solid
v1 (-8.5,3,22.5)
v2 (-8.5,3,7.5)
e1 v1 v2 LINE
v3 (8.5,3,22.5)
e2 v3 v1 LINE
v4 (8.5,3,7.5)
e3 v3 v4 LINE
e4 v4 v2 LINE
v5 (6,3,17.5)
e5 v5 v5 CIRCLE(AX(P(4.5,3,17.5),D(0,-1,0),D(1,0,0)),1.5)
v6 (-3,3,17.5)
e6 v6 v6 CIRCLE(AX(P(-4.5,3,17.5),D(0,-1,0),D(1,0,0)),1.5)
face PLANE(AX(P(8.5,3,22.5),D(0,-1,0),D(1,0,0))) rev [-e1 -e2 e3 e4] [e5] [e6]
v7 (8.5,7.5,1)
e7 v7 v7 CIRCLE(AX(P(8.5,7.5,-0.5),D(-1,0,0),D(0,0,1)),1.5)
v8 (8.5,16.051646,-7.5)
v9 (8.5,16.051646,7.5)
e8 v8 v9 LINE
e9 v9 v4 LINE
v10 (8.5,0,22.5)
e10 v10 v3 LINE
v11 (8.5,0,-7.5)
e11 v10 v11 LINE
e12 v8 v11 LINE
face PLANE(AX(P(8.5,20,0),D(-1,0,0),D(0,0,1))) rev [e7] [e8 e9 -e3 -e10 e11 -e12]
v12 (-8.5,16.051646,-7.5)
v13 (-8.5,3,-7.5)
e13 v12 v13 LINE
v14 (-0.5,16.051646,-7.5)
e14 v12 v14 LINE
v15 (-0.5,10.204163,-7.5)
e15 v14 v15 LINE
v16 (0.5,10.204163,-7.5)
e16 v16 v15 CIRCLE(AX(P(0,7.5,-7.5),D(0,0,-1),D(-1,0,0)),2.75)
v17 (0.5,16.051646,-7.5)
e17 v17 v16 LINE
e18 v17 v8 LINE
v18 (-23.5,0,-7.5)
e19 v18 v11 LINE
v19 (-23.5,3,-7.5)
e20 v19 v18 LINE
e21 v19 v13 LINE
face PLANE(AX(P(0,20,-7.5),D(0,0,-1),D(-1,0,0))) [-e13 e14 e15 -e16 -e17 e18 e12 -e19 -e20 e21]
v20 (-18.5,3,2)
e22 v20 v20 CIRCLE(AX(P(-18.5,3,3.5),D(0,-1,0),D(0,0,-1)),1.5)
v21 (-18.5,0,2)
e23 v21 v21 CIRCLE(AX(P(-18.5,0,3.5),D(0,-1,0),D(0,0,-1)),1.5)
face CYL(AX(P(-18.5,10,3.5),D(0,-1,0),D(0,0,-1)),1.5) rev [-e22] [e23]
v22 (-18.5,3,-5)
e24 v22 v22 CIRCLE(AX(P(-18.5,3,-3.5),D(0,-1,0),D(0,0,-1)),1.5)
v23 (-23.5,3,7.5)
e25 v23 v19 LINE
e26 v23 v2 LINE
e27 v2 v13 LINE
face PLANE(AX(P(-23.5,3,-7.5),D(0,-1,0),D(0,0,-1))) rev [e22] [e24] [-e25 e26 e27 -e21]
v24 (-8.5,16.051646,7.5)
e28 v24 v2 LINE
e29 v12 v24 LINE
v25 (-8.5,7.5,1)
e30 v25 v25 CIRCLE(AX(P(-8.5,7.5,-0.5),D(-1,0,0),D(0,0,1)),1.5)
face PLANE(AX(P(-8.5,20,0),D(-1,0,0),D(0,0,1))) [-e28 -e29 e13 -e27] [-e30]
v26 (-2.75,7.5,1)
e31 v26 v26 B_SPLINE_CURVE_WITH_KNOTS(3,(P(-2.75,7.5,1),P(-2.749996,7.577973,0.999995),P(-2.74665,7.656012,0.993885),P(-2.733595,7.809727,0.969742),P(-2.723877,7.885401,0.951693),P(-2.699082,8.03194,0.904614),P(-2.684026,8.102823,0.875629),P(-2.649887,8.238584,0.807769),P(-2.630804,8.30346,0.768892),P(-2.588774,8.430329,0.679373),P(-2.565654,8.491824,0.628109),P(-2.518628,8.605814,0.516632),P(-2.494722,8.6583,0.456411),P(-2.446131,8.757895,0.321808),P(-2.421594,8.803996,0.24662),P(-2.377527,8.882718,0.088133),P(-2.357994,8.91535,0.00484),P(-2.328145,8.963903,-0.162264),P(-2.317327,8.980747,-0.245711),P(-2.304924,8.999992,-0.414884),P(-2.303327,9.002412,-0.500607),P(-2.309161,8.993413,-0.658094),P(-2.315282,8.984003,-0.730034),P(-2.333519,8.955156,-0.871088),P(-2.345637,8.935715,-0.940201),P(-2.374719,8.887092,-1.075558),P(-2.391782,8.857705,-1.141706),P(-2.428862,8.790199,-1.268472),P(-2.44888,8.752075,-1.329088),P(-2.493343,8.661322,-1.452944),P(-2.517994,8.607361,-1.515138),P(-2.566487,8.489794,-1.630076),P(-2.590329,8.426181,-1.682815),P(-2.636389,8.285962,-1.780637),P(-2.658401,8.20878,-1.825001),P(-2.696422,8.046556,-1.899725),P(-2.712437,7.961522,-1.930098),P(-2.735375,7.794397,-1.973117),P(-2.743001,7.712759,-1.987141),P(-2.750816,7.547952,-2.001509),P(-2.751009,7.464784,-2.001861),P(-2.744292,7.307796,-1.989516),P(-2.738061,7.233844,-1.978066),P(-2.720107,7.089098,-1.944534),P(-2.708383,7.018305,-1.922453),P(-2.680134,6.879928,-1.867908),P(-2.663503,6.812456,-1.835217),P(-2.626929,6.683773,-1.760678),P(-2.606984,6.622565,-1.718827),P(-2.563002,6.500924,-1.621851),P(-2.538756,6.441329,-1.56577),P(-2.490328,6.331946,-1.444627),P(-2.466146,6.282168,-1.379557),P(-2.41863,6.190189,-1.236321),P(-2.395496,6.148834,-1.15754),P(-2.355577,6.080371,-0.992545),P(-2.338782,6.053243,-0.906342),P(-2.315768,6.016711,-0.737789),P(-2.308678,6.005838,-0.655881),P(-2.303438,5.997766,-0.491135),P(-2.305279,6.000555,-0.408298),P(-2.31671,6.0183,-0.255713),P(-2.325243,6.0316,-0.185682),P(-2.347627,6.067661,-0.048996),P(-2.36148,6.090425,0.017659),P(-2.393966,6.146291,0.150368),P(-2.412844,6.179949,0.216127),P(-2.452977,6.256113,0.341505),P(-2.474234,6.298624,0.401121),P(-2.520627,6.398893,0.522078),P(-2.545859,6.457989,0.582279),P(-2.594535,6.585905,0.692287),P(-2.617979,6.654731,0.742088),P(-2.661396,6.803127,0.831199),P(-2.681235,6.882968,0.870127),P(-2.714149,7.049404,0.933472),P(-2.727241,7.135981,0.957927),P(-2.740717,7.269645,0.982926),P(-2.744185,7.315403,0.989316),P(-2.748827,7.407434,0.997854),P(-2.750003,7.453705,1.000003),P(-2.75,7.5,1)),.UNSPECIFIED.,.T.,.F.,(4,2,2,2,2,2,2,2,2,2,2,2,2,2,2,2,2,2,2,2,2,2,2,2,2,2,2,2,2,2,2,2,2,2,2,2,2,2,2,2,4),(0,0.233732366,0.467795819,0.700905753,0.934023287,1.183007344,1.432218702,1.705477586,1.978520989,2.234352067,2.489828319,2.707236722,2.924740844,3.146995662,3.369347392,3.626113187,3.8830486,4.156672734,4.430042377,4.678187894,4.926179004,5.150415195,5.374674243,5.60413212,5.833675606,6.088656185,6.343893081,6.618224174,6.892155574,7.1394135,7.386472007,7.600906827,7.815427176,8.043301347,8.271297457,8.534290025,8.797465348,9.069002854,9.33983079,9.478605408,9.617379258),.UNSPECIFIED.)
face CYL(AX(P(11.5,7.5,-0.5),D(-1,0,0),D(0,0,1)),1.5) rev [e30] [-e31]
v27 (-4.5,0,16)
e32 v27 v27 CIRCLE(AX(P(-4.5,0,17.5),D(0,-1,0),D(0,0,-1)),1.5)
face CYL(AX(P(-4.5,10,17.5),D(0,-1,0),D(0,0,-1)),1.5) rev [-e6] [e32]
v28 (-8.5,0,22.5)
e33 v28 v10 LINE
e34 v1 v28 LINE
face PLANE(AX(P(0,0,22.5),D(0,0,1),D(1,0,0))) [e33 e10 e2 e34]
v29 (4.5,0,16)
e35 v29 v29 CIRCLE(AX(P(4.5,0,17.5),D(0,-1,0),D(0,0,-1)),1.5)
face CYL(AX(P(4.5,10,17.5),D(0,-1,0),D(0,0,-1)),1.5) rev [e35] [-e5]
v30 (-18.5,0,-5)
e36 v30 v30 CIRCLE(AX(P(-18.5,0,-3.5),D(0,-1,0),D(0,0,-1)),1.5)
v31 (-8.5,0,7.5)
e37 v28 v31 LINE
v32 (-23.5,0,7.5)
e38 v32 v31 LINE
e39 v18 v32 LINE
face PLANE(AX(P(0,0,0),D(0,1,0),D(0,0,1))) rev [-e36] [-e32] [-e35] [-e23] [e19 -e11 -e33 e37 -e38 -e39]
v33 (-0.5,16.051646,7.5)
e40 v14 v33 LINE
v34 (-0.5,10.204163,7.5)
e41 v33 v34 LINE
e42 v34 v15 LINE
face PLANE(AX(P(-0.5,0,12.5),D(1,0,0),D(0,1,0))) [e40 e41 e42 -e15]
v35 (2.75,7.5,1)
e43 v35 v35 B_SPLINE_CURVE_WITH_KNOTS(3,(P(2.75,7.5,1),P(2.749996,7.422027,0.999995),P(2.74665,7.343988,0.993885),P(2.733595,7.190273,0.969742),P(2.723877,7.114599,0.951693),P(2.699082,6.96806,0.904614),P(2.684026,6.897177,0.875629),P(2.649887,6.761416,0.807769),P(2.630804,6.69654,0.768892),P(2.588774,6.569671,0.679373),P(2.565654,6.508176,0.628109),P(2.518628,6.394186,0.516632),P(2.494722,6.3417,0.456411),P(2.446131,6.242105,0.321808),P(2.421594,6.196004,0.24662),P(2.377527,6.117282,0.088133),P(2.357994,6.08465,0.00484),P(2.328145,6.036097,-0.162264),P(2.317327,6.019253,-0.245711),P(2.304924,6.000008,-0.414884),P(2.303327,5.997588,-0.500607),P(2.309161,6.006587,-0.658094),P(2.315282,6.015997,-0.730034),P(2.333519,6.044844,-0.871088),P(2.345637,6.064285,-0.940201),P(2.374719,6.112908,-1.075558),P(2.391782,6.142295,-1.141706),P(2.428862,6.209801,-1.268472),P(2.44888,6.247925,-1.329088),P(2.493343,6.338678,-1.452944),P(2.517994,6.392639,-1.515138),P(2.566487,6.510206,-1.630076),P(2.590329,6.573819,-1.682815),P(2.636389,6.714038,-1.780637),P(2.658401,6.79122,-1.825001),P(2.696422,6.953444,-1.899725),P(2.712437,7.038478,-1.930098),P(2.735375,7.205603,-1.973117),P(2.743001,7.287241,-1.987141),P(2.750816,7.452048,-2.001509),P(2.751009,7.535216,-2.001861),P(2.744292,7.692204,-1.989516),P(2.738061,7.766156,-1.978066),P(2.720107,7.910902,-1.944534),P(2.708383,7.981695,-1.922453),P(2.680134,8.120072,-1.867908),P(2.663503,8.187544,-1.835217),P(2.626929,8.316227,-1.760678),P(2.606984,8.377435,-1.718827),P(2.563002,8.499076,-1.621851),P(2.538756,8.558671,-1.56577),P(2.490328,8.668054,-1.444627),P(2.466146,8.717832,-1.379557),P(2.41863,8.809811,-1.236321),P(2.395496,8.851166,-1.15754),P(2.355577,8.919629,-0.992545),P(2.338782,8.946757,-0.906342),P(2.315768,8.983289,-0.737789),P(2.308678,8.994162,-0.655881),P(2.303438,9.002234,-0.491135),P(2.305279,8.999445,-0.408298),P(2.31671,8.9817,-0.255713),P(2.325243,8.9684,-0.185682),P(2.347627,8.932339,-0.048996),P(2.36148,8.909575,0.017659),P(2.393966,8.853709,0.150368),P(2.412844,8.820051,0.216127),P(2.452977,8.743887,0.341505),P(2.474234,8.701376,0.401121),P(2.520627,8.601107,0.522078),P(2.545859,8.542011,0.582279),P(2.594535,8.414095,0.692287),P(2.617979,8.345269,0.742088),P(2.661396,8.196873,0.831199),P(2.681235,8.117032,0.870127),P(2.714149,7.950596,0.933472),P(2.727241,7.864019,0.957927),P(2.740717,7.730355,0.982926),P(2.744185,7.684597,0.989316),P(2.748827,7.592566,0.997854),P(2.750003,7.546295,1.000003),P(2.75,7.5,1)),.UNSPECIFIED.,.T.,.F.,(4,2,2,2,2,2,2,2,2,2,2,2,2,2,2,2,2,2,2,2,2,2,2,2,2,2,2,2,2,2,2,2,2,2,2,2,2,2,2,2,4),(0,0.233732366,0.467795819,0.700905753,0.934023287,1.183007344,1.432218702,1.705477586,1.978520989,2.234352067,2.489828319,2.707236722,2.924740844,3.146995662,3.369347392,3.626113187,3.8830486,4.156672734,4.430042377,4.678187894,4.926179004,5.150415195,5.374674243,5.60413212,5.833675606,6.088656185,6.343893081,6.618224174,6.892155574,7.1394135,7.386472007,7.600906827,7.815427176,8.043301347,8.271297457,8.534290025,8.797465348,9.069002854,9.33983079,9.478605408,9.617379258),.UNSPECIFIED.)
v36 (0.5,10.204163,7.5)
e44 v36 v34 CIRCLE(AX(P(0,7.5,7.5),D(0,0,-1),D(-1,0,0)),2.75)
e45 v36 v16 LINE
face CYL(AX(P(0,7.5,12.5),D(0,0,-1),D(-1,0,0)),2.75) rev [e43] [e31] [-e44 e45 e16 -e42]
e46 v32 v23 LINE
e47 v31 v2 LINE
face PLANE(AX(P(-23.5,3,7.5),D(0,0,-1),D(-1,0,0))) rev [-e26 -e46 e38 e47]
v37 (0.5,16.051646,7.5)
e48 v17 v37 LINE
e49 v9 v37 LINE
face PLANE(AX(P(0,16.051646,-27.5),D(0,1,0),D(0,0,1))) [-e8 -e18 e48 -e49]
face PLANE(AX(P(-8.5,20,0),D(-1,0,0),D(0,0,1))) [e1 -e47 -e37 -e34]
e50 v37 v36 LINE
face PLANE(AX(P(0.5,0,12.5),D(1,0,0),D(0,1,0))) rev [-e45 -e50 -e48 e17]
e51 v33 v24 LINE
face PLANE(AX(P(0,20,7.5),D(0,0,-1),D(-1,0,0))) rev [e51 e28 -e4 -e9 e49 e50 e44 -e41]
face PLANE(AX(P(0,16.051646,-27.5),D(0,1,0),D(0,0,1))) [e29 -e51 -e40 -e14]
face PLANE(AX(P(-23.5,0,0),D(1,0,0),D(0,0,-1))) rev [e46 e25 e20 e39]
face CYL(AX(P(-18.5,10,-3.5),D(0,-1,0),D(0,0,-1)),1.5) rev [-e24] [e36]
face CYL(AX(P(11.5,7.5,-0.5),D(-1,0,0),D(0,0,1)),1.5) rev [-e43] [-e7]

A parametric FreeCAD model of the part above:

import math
import FreeCAD as App
import Part
import Sketcher
from FreeCAD import Vector
Q = App.Units.Quantity

doc = App.newDocument("Part")
params = doc.addObject("Spreadsheet::Sheet", "Params")
for row, (alias, value) in enumerate([
    ("sketch1_width", "17 mm"),
    ("sketch1_height", "15 mm"),
    ("pad1_length", "20 mm"),
    ("sketch2_width", "1 mm"),
    ("sketch2_radius", "2.75 mm"),
    ("pocket1_length", "20 mm"),
    ("sketch3_diameter", "3 mm"),
    ("pocket2_length", "20 mm"),
    ("sketch4_width", "8 mm"),
    ("pocket3_length", "35 mm"),
    ("sketch5_width", "17 mm"),
    ("sketch5_height", "3 mm"),
    ("pad2_length", "15 mm"),
    ("sketch6_width", "3 mm"),
    ("sketch6_height", "15 mm"),
    ("pad3_length", "15 mm"),
    ("sketch7_diameter", "3 mm"),
    ("pocket4_length", "10 mm"),
], start=1):
    params.set(f"A{row}", alias)
    params.set(f"B{row}", "=" + value)
    params.setAlias(f"B{row}", alias)

body = doc.addObject("PartDesign::Body", "Body")

sketch1 = doc.addObject("Sketcher::SketchObject", "Sketch")
body.addObject(sketch1)
sketch1.AttachmentSupport = (doc.XZ_Plane, [""])
sketch1.MapMode = "FlatFace"
sketch1.addGeometry([
    Part.LineSegment(Vector(-8, -8, 0), Vector(-8, 8, 0)),
    Part.LineSegment(Vector(-8, 8, 0), Vector(8, 8, 0)),
    Part.LineSegment(Vector(8, 8, 0), Vector(8, -8, 0)),
    Part.LineSegment(Vector(8, -8, 0), Vector(-8, -8, 0)),
], False)
sketch1.addConstraint([
    Sketcher.Constraint("Coincident", 0, 2, 1, 1),
    Sketcher.Constraint("Coincident", 1, 2, 2, 1),
    Sketcher.Constraint("Coincident", 2, 2, 3, 1),
    Sketcher.Constraint("Coincident", 3, 2, 0, 1),
    Sketcher.Constraint("Vertical", 0),
    Sketcher.Constraint("Horizontal", 1),
    Sketcher.Constraint("Vertical", 2),
    Sketcher.Constraint("Horizontal", 3),
    Sketcher.Constraint("Symmetric", 0, 2, 2, 2, -1, 1),
    Sketcher.Constraint("DistanceX", 1, 1, 1, 2, Q("17 mm")),
    Sketcher.Constraint("DistanceY", 0, 1, 0, 2, Q("15 mm")),
])
sketch1.setExpression("Constraints[9]", "Params.sketch1_width")
sketch1.setExpression("Constraints[10]", "Params.sketch1_height")
pad1 = doc.addObject("PartDesign::Pad", "Pad")
body.addObject(pad1)
pad1.Profile = sketch1
pad1.setExpression("Length", "Params.pad1_length")
pad1.Reversed = True

sketch2 = doc.addObject("Sketcher::SketchObject", "Sketch001")
body.addObject(sketch2)
sketch2.AttachmentSupport = (doc.XY_Plane, [""])
sketch2.MapMode = "FlatFace"
sketch2.AttachmentOffset = App.Placement(Vector(0, 0, -7.5), App.Rotation())
sketch2.addGeometry([
    Part.LineSegment(Vector(-0.5, 10.2, 0), Vector(-0.5, 20, 0)),
    Part.LineSegment(Vector(-0.5, 20, 0), Vector(0.5, 20, 0)),
    Part.LineSegment(Vector(0.5, 20, 0), Vector(0.5, 10.2, 0)),
    Part.ArcOfCircle(Part.Circle(Vector(0, 7.5, 0), Vector(0, 0, 1), 2.8), math.radians(100), math.radians(440)),
], False)
sketch2.addConstraint([
    Sketcher.Constraint("Coincident", 0, 2, 1, 1),
    Sketcher.Constraint("Coincident", 1, 2, 2, 1),
    Sketcher.Constraint("Coincident", 2, 2, 3, 2),
    Sketcher.Constraint("Coincident", 3, 1, 0, 1),
    Sketcher.Constraint("Vertical", 0),
    Sketcher.Constraint("Horizontal", 1),
    Sketcher.Constraint("Vertical", 2),
    Sketcher.Constraint("Symmetric", 2, 2, 3, 1, -2),
    Sketcher.Constraint("DistanceX", 1, 1, 1, 2, Q("1 mm")),
    Sketcher.Constraint("Radius", 3, Q("2.75 mm")),
    Sketcher.Constraint("DistanceY", -1, 1, 0, 2, Q("20 mm")),
    Sketcher.Constraint("DistanceY", -1, 1, 3, 3, Q("7.5 mm")),
])
sketch2.setExpression("Constraints[8]", "Params.sketch2_width")
sketch2.setExpression("Constraints[9]", "Params.sketch2_radius")
pocket1 = doc.addObject("PartDesign::Pocket", "Pocket")
body.addObject(pocket1)
pocket1.Profile = sketch2
pocket1.setExpression("Length", "Params.pocket1_length")
pocket1.Reversed = True

sketch3 = doc.addObject("Sketcher::SketchObject", "Sketch002")
body.addObject(sketch3)
sketch3.AttachmentSupport = (doc.YZ_Plane, [""])
sketch3.MapMode = "FlatFace"
sketch3.AttachmentOffset = App.Placement(Vector(0, 0, -8.5), App.Rotation())
sketch3.addGeometry(Part.Circle(Vector(7.5, -0.5, 0), Vector(0, 0, 1), 1.5), False)
sketch3.addConstraint([
    Sketcher.Constraint("Diameter", 0, Q("3 mm")),
    Sketcher.Constraint("DistanceX", -1, 1, 0, 3, Q("7.5 mm")),
    Sketcher.Constraint("DistanceY", 0, 3, -1, 1, Q("0.5 mm")),
])
sketch3.setExpression("Constraints[0]", "Params.sketch3_diameter")
pocket2 = doc.addObject("PartDesign::Pocket", "Pocket001")
body.addObject(pocket2)
pocket2.Profile = sketch3
pocket2.setExpression("Length", "Params.pocket2_length")
pocket2.Reversed = True

sketch4 = doc.addObject("Sketcher::SketchObject", "Sketch003")
body.addObject(sketch4)
sketch4.AttachmentSupport = (doc.XY_Plane, [""])
sketch4.MapMode = "FlatFace"
sketch4.AttachmentOffset = App.Placement(Vector(0, 0, 7.5), App.Rotation())
sketch4.addGeometry([
    Part.LineSegment(Vector(0.5, 20, 0), Vector(0.5, 16.1, 0)),
    Part.LineSegment(Vector(0.5, 16.1, 0), Vector(8.5, 16.1, 0)),
    Part.LineSegment(Vector(8.5, 16.1, 0), Vector(8.5, 20, 0)),
    Part.LineSegment(Vector(8.5, 20, 0), Vector(0.5, 20, 0)),
    Part.LineSegment(Vector(-8.5, 20, 0), Vector(-8.5, 16.1, 0)),
    Part.LineSegment(Vector(-8.5, 16.1, 0), Vector(-0.5, 16.1, 0)),
    Part.LineSegment(Vector(-0.5, 16.1, 0), Vector(-0.5, 20, 0)),
    Part.LineSegment(Vector(-0.5, 20, 0), Vector(-8.5, 20, 0)),
], False)
sketch4.addConstraint([
    Sketcher.Constraint("Coincident", 0, 2, 1, 1),
    Sketcher.Constraint("Coincident", 1, 2, 2, 1),
    Sketcher.Constraint("Coincident", 2, 2, 3, 1),
    Sketcher.Constraint("Coincident", 3, 2, 0, 1),
    Sketcher.Constraint("Coincident", 4, 2, 5, 1),
    Sketcher.Constraint("Coincident", 5, 2, 6, 1),
    Sketcher.Constraint("Coincident", 6, 2, 7, 1),
    Sketcher.Constraint("Coincident", 7, 2, 4, 1),
    Sketcher.Constraint("Vertical", 0),
    Sketcher.Constraint("Horizontal", 1),
    Sketcher.Constraint("Vertical", 2),
    Sketcher.Constraint("Horizontal", 3),
    Sketcher.Constraint("Vertical", 4),
    Sketcher.Constraint("Horizontal", 5),
    Sketcher.Constraint("Vertical", 6),
    Sketcher.Constraint("Horizontal", 7),
    Sketcher.Constraint("Symmetric", 1, 2, 4, 2, -2),
    Sketcher.Constraint("Symmetric", 3, 2, 6, 2, -2),
    Sketcher.Constraint("DistanceX", 1, 1, 1, 2, Q("8 mm")),
    Sketcher.Constraint("DistanceY", -1, 1, 2, 2, Q("20 mm")),
    Sketcher.Constraint("DistanceX", 4, 2, 0, 2, Q("9 mm")),
    Sketcher.Constraint("DistanceY", 0, 2, 0, 1, Q("3.948354 mm")),
])
sketch4.setExpression("Constraints[18]", "Params.sketch4_width")
pocket3 = doc.addObject("PartDesign::Pocket", "Pocket002")
body.addObject(pocket3)
pocket3.Profile = sketch4
pocket3.setExpression("Length", "Params.pocket3_length")

sketch5 = doc.addObject("Sketcher::SketchObject", "Sketch004")
body.addObject(sketch5)
sketch5.AttachmentSupport = (doc.XY_Plane, [""])
sketch5.MapMode = "FlatFace"
sketch5.AttachmentOffset = App.Placement(Vector(0, 0, 7.5), App.Rotation())
sketch5.addGeometry([
    Part.LineSegment(Vector(-8.5, 3, 0), Vector(-8.5, 0, 0)),
    Part.LineSegment(Vector(-8.5, 0, 0), Vector(8.5, 0, 0)),
    Part.LineSegment(Vector(8.5, 0, 0), Vector(8.5, 3, 0)),
    Part.LineSegment(Vector(8.5, 3, 0), Vector(-8.5, 3, 0)),
], False)
sketch5.addConstraint([
    Sketcher.Constraint("Coincident", 0, 2, 1, 1),
    Sketcher.Constraint("Coincident", 1, 2, 2, 1),
    Sketcher.Constraint("Coincident", 2, 2, 3, 1),
    Sketcher.Constraint("Coincident", 3, 2, 0, 1),
    Sketcher.Constraint("Vertical", 0),
    Sketcher.Constraint("Horizontal", 1),
    Sketcher.Constraint("Vertical", 2),
    Sketcher.Constraint("Horizontal", 3),
    Sketcher.Constraint("Symmetric", 0, 2, 1, 2, -1, 1),
    Sketcher.Constraint("DistanceX", 1, 1, 1, 2, Q("17 mm")),
    Sketcher.Constraint("DistanceY", 0, 2, 0, 1, Q("3 mm")),
])
sketch5.setExpression("Constraints[9]", "Params.sketch5_width")
sketch5.setExpression("Constraints[10]", "Params.sketch5_height")
pad2 = doc.addObject("PartDesign::Pad", "Pad001")
body.addObject(pad2)
pad2.Profile = sketch5
pad2.setExpression("Length", "Params.pad2_length")

sketch6 = doc.addObject("Sketcher::SketchObject", "Sketch005")
body.addObject(sketch6)
sketch6.AttachmentSupport = (doc.YZ_Plane, [""])
sketch6.MapMode = "FlatFace"
sketch6.AttachmentOffset = App.Placement(Vector(0, 0, -8.5), App.Rotation())
sketch6.addGeometry([
    Part.LineSegment(Vector(3, -7.5, 0), Vector(0, -7.5, 0)),
    Part.LineSegment(Vector(0, -7.5, 0), Vector(0, 7.5, 0)),
    Part.LineSegment(Vector(0, 7.5, 0), Vector(3, 7.5, 0)),
    Part.LineSegment(Vector(3, 7.5, 0), Vector(3, -7.5, 0)),
], False)
sketch6.addConstraint([
    Sketcher.Constraint("Coincident", 0, 2, 1, 1),
    Sketcher.Constraint("Coincident", 1, 2, 2, 1),
    Sketcher.Constraint("Coincident", 2, 2, 3, 1),
    Sketcher.Constraint("Coincident", 3, 2, 0, 1),
    Sketcher.Constraint("Horizontal", 0),
    Sketcher.Constraint("Vertical", 1),
    Sketcher.Constraint("Horizontal", 2),
    Sketcher.Constraint("Vertical", 3),
    Sketcher.Constraint("Symmetric", 0, 2, 1, 2, -1, 1),
    Sketcher.Constraint("DistanceX", 0, 2, 0, 1, Q("3 mm")),
    Sketcher.Constraint("DistanceY", 1, 1, 1, 2, Q("15 mm")),
])
sketch6.setExpression("Constraints[9]", "Params.sketch6_width")
sketch6.setExpression("Constraints[10]", "Params.sketch6_height")
pad3 = doc.addObject("PartDesign::Pad", "Pad002")
body.addObject(pad3)
pad3.Profile = sketch6
pad3.setExpression("Length", "Params.pad3_length")
pad3.Reversed = True

sketch7 = doc.addObject("Sketcher::SketchObject", "Sketch006")
body.addObject(sketch7)
sketch7.AttachmentSupport = (doc.XZ_Plane, [""])
sketch7.MapMode = "FlatFace"
sketch7.addGeometry([
    Part.Circle(Vector(-18.5, -3.5, 0), Vector(0, 0, 1), 1.5),
    Part.Circle(Vector(-4.5, 17.5, 0), Vector(0, 0, 1), 1.5),
    Part.Circle(Vector(4.5, 17.5, 0), Vector(0, 0, 1), 1.5),
    Part.Circle(Vector(-18.5, 3.5, 0), Vector(0, 0, 1), 1.5),
], False)
sketch7.addConstraint([
    Sketcher.Constraint("Equal", 0, 1),
    Sketcher.Constraint("Equal", 1, 2),
    Sketcher.Constraint("Equal", 2, 3),
    Sketcher.Constraint("Symmetric", 1, 3, 2, 3, -2),
    Sketcher.Constraint("Symmetric", 0, 3, 3, 3, -1),
    Sketcher.Constraint("Diameter", 0, Q("3 mm")),
    Sketcher.Constraint("DistanceX", 0, 3, 1, 3, Q("14 mm")),
    Sketcher.Constraint("DistanceY", 0, 3, 1, 3, Q("21 mm")),
    Sketcher.Constraint("DistanceX", 1, 3, 2, 3, Q("9 mm")),
    Sketcher.Constraint("DistanceY", 0, 3, 3, 3, Q("7 mm")),
])
sketch7.setExpression("Constraints[5]", "Params.sketch7_diameter")
pocket4 = doc.addObject("PartDesign::Pocket", "Pocket003")
body.addObject(pocket4)
pocket4.Profile = sketch7
pocket4.setExpression("Length", "Params.pocket4_length")

doc.recompute()
